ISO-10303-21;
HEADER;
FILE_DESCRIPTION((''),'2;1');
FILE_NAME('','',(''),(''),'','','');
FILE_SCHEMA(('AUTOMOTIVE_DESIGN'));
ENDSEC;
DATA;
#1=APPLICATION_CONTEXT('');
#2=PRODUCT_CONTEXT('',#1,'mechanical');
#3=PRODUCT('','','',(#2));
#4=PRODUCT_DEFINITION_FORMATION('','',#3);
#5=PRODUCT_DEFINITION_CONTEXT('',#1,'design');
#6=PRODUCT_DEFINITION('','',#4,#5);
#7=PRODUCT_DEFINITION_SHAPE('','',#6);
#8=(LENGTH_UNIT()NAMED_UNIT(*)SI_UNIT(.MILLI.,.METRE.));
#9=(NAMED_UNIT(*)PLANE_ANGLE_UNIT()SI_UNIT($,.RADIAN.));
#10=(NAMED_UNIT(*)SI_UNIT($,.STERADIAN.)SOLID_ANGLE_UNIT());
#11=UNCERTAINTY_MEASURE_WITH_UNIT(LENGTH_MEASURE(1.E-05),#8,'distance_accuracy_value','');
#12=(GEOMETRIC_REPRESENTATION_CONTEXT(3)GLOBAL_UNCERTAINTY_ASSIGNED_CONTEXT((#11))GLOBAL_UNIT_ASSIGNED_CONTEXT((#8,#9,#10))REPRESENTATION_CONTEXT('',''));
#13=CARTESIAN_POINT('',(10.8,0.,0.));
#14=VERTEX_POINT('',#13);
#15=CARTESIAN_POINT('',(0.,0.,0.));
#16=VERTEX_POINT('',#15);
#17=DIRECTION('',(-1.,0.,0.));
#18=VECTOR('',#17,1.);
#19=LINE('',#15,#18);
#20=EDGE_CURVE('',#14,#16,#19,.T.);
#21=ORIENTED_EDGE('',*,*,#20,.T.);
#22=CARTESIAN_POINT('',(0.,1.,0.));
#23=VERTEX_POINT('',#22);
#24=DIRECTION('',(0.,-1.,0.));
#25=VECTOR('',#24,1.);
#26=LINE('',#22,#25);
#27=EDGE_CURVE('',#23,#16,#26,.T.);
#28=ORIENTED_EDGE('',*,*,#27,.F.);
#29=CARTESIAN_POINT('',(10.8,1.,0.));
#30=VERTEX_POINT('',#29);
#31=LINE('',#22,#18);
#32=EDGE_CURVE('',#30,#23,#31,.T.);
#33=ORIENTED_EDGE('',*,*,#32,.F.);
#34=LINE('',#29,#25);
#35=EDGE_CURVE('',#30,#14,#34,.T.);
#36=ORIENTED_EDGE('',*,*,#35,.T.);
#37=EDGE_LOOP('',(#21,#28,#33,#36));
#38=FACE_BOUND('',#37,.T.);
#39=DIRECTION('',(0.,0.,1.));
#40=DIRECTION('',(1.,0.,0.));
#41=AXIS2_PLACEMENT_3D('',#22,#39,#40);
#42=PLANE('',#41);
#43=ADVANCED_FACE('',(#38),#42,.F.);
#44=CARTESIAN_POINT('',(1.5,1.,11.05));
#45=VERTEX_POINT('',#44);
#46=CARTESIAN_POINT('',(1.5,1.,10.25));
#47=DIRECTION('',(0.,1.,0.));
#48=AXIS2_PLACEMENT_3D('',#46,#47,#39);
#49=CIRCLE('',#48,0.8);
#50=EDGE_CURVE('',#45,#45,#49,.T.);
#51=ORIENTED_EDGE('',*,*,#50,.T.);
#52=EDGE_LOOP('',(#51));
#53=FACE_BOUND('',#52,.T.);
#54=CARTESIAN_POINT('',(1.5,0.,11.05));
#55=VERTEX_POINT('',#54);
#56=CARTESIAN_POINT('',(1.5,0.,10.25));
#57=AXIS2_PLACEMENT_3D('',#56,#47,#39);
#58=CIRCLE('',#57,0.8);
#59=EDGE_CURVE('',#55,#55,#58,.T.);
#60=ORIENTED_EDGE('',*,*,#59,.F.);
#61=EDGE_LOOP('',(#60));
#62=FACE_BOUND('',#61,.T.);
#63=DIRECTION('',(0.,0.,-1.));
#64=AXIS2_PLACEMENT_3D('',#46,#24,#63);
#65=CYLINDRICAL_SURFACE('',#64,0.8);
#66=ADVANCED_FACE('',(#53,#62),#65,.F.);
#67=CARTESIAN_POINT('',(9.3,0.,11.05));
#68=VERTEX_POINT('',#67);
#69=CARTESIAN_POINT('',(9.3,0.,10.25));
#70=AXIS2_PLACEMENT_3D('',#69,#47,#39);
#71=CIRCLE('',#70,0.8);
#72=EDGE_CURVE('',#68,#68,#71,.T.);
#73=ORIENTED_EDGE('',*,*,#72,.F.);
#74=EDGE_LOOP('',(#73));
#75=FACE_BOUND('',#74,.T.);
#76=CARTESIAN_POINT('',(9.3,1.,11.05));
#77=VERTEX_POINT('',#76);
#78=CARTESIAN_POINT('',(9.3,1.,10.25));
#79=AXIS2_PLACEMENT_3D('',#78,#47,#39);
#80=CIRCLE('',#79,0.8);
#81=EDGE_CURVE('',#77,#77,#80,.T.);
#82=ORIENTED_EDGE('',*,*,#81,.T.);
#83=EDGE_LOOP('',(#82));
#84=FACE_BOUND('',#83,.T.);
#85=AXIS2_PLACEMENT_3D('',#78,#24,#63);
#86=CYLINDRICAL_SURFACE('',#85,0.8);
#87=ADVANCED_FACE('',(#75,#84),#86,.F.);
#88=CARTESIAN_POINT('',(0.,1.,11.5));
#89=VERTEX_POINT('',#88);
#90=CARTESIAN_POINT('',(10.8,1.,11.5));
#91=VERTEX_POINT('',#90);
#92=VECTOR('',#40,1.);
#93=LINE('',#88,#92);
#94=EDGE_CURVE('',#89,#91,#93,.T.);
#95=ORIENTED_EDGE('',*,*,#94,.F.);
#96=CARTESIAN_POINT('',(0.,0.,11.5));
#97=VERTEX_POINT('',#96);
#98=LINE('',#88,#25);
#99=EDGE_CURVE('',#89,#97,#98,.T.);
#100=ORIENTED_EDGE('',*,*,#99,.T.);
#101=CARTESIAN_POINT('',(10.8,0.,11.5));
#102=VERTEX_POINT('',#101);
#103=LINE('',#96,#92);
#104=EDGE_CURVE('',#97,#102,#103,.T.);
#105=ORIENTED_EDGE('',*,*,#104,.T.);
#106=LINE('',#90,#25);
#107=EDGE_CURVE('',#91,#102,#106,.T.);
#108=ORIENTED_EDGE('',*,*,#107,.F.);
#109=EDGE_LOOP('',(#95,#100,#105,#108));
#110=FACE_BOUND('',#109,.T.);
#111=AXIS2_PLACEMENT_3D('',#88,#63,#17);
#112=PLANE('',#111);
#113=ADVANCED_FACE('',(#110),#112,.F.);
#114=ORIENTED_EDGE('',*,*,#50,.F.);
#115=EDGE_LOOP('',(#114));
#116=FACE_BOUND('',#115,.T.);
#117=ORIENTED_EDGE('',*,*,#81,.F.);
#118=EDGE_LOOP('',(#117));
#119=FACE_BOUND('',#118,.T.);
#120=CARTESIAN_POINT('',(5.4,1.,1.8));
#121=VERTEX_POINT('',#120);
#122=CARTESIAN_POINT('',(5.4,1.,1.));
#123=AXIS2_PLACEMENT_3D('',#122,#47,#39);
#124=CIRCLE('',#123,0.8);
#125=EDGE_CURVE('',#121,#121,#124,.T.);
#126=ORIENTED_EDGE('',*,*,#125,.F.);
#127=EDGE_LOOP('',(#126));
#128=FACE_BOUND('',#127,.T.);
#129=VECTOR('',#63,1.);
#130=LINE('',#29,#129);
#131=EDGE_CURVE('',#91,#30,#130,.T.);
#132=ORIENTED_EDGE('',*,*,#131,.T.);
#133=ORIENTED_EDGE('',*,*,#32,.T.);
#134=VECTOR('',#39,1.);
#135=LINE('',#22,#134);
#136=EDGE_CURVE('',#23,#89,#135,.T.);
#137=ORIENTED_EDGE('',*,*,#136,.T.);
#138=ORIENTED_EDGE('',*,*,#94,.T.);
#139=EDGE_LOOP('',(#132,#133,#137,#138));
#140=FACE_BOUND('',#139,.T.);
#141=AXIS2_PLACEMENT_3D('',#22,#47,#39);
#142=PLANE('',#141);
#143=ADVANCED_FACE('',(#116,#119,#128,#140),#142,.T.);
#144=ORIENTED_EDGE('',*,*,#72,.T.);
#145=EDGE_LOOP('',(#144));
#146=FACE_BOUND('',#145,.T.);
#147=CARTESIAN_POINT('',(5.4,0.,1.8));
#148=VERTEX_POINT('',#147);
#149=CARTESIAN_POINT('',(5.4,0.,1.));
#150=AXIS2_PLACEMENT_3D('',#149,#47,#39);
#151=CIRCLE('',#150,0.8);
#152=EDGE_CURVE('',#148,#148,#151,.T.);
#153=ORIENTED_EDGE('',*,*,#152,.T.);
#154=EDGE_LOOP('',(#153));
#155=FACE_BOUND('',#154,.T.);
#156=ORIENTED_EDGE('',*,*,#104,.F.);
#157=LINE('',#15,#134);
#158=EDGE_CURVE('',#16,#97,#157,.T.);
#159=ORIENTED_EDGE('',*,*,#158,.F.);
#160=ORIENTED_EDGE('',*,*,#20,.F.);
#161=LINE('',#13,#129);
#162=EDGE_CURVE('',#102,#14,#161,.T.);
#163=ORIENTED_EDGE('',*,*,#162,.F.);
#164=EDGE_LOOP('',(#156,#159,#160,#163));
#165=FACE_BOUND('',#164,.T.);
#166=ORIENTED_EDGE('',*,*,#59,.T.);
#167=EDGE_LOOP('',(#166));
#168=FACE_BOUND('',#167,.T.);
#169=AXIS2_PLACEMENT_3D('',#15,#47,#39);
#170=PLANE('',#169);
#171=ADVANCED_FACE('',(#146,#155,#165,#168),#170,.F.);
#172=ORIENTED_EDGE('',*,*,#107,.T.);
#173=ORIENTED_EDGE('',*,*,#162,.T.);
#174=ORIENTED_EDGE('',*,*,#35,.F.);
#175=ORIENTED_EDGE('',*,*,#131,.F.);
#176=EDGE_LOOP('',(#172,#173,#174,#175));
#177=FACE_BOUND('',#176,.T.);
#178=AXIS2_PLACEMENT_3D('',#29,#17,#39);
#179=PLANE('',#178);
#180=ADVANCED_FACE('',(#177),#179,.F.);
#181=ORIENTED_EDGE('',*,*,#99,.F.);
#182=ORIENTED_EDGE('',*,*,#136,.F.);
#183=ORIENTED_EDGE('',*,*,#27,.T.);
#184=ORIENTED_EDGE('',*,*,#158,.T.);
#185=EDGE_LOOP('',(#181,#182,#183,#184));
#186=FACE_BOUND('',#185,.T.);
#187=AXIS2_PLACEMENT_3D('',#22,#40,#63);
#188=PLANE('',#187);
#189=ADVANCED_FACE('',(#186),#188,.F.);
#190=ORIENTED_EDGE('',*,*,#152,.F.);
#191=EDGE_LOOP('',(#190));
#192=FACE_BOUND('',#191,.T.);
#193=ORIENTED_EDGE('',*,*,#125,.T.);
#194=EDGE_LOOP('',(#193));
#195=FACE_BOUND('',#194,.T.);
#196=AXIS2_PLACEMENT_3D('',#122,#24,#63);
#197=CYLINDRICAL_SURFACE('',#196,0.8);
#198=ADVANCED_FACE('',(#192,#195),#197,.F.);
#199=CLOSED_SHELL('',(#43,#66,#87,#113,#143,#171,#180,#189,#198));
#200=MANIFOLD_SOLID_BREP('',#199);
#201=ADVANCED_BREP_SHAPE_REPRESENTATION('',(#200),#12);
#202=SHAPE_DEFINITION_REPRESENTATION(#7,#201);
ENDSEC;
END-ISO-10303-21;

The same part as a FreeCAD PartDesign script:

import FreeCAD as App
import Part
import Sketcher

doc = App.newDocument("Part")
params = doc.addObject("Spreadsheet::Sheet", "Params")
for row, (alias, value) in enumerate([
    ("sketch1_diameter", "1.6 mm"),
    ("sketch1_width", "10.8 mm"),
    ("sketch1_height", "11.5 mm"),
    ("pad1_length", "1 mm"),
], start=1):
    params.set(f"A{row}", alias)
    params.set(f"B{row}", "=" + value)
    params.setAlias(f"B{row}", alias)

body = doc.addObject("PartDesign::Body", "Body")

# Sketch on XZ plane
sketch1 = body.newObject("Sketcher::SketchObject", "Sketch")
sketch1.AttachmentSupport = (doc.getObject("XZ_Plane"), [""])
sketch1.MapMode = "FlatFace"
sketch1.addGeometry([
    Part.LineSegment(App.Vector(0, 0, 0), App.Vector(0, 11.5, 0)),  # 0
    Part.LineSegment(App.Vector(0, 11.5, 0), App.Vector(10.8, 11.5, 0)),  # 1
    Part.LineSegment(App.Vector(10.8, 11.5, 0), App.Vector(10.8, 0, 0)),  # 2
    Part.LineSegment(App.Vector(10.8, 0, 0), App.Vector(0, 0, 0)),  # 3
    Part.Circle(App.Vector(1.5, 10.2, 0), App.Vector(0, 0, 1), 0.8),  # 4
    Part.Circle(App.Vector(9.3, 10.2, 0), App.Vector(0, 0, 1), 0.8),  # 5
    Part.Circle(App.Vector(5.4, 1, 0), App.Vector(0, 0, 1), 0.8),  # 6
], False)
sketch1.addConstraint([
    Sketcher.Constraint("Coincident", 0, 2, 1, 1),
    Sketcher.Constraint("Coincident", 1, 2, 2, 1),
    Sketcher.Constraint("Coincident", 2, 2, 3, 1),
    Sketcher.Constraint("Coincident", 3, 2, 0, 1),
    Sketcher.Constraint("Vertical", 0),
    Sketcher.Constraint("Horizontal", 1),
    Sketcher.Constraint("Vertical", 2),
    Sketcher.Constraint("Horizontal", 3),
    Sketcher.Constraint("Coincident", 3, 2, -1, 1),
    Sketcher.Constraint("Equal", 4, 5),
    Sketcher.Constraint("Equal", 5, 6),
    Sketcher.Constraint("Horizontal", 4, 3, 5, 3),
    Sketcher.Constraint("Diameter", 4, 1.6),
    Sketcher.Constraint("DistanceX", 1, 1, 1, 2, 10.8),
    Sketcher.Constraint("DistanceY", 0, 1, 0, 2, 11.5),
    Sketcher.Constraint("DistanceY", -1, 1, 6, 3, 1.0),
    Sketcher.Constraint("DistanceX", -1, 1, 4, 3, 1.5),
    Sketcher.Constraint("DistanceX", -1, 1, 5, 3, 9.3),
    Sketcher.Constraint("DistanceX", -1, 1, 6, 3, 5.4),
    Sketcher.Constraint("DistanceY", -1, 1, 4, 3, 10.25),
])
sketch1.setExpression("Constraints[12]", "Params.sketch1_diameter")
sketch1.setExpression("Constraints[13]", "Params.sketch1_width")
sketch1.setExpression("Constraints[14]", "Params.sketch1_height")
pad1 = body.newObject("PartDesign::Pad", "Pad")
pad1.Profile = sketch1
pad1.setExpression("Length", "Params.pad1_length")
pad1.Reversed = True

doc.recompute()
